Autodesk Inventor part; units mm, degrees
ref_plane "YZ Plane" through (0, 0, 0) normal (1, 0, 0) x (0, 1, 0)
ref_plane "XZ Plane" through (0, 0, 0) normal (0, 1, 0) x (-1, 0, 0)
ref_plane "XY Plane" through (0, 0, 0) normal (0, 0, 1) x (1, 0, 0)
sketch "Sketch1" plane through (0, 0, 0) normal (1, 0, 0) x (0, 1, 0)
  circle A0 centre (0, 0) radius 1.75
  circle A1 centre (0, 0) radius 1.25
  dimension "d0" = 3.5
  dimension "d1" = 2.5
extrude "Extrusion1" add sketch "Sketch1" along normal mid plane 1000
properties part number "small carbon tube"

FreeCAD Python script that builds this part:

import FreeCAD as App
import Part
import Sketcher

V = App.Vector
Q = App.Units.Quantity

doc = App.newDocument("Part")
params = doc.addObject("Spreadsheet::Sheet", "Params")
for row, (alias, value) in enumerate([
    ("sketch1_diameter", "3.5 mm"),
    ("sketch1_diameter2", "2.5 mm"),
    ("pad1_length", "1000 mm"),
], start=1):
    params.set(f"A{row}", alias)
    params.set(f"B{row}", "=" + value)
    params.setAlias(f"B{row}", alias)

body = doc.addObject("PartDesign::Body", "Body")

# Sketch on YZ plane
sketch1 = doc.addObject("Sketcher::SketchObject", "Sketch")
body.addObject(sketch1)
sketch1.AttachmentSupport = (doc.YZ_Plane, [""])
sketch1.MapMode = "FlatFace"
sketch1.addGeometry(Part.Circle(V(0, 0, 0), V(0, 0, 1), 1.8), False)
sketch1.addGeometry(Part.Circle(V(0, 0, 0), V(0, 0, 1), 1.2), False)
sketch1.addConstraint(Sketcher.Constraint("Coincident", 0, 3, -1, 1))
sketch1.addConstraint(Sketcher.Constraint("Coincident", 1, 3, -1, 1))
sketch1.addConstraint(Sketcher.Constraint("Diameter", 0, Q("3.5 mm")))
sketch1.addConstraint(Sketcher.Constraint("Diameter", 1, Q("2.5 mm")))
sketch1.setExpression("Constraints[2]", "Params.sketch1_diameter")
sketch1.setExpression("Constraints[3]", "Params.sketch1_diameter2")
pad1 = doc.addObject("PartDesign::Pad", "Pad")
body.addObject(pad1)
pad1.Profile = sketch1
pad1.setExpression("Length", "Params.pad1_length")
pad1.Midplane = True

doc.recompute()
